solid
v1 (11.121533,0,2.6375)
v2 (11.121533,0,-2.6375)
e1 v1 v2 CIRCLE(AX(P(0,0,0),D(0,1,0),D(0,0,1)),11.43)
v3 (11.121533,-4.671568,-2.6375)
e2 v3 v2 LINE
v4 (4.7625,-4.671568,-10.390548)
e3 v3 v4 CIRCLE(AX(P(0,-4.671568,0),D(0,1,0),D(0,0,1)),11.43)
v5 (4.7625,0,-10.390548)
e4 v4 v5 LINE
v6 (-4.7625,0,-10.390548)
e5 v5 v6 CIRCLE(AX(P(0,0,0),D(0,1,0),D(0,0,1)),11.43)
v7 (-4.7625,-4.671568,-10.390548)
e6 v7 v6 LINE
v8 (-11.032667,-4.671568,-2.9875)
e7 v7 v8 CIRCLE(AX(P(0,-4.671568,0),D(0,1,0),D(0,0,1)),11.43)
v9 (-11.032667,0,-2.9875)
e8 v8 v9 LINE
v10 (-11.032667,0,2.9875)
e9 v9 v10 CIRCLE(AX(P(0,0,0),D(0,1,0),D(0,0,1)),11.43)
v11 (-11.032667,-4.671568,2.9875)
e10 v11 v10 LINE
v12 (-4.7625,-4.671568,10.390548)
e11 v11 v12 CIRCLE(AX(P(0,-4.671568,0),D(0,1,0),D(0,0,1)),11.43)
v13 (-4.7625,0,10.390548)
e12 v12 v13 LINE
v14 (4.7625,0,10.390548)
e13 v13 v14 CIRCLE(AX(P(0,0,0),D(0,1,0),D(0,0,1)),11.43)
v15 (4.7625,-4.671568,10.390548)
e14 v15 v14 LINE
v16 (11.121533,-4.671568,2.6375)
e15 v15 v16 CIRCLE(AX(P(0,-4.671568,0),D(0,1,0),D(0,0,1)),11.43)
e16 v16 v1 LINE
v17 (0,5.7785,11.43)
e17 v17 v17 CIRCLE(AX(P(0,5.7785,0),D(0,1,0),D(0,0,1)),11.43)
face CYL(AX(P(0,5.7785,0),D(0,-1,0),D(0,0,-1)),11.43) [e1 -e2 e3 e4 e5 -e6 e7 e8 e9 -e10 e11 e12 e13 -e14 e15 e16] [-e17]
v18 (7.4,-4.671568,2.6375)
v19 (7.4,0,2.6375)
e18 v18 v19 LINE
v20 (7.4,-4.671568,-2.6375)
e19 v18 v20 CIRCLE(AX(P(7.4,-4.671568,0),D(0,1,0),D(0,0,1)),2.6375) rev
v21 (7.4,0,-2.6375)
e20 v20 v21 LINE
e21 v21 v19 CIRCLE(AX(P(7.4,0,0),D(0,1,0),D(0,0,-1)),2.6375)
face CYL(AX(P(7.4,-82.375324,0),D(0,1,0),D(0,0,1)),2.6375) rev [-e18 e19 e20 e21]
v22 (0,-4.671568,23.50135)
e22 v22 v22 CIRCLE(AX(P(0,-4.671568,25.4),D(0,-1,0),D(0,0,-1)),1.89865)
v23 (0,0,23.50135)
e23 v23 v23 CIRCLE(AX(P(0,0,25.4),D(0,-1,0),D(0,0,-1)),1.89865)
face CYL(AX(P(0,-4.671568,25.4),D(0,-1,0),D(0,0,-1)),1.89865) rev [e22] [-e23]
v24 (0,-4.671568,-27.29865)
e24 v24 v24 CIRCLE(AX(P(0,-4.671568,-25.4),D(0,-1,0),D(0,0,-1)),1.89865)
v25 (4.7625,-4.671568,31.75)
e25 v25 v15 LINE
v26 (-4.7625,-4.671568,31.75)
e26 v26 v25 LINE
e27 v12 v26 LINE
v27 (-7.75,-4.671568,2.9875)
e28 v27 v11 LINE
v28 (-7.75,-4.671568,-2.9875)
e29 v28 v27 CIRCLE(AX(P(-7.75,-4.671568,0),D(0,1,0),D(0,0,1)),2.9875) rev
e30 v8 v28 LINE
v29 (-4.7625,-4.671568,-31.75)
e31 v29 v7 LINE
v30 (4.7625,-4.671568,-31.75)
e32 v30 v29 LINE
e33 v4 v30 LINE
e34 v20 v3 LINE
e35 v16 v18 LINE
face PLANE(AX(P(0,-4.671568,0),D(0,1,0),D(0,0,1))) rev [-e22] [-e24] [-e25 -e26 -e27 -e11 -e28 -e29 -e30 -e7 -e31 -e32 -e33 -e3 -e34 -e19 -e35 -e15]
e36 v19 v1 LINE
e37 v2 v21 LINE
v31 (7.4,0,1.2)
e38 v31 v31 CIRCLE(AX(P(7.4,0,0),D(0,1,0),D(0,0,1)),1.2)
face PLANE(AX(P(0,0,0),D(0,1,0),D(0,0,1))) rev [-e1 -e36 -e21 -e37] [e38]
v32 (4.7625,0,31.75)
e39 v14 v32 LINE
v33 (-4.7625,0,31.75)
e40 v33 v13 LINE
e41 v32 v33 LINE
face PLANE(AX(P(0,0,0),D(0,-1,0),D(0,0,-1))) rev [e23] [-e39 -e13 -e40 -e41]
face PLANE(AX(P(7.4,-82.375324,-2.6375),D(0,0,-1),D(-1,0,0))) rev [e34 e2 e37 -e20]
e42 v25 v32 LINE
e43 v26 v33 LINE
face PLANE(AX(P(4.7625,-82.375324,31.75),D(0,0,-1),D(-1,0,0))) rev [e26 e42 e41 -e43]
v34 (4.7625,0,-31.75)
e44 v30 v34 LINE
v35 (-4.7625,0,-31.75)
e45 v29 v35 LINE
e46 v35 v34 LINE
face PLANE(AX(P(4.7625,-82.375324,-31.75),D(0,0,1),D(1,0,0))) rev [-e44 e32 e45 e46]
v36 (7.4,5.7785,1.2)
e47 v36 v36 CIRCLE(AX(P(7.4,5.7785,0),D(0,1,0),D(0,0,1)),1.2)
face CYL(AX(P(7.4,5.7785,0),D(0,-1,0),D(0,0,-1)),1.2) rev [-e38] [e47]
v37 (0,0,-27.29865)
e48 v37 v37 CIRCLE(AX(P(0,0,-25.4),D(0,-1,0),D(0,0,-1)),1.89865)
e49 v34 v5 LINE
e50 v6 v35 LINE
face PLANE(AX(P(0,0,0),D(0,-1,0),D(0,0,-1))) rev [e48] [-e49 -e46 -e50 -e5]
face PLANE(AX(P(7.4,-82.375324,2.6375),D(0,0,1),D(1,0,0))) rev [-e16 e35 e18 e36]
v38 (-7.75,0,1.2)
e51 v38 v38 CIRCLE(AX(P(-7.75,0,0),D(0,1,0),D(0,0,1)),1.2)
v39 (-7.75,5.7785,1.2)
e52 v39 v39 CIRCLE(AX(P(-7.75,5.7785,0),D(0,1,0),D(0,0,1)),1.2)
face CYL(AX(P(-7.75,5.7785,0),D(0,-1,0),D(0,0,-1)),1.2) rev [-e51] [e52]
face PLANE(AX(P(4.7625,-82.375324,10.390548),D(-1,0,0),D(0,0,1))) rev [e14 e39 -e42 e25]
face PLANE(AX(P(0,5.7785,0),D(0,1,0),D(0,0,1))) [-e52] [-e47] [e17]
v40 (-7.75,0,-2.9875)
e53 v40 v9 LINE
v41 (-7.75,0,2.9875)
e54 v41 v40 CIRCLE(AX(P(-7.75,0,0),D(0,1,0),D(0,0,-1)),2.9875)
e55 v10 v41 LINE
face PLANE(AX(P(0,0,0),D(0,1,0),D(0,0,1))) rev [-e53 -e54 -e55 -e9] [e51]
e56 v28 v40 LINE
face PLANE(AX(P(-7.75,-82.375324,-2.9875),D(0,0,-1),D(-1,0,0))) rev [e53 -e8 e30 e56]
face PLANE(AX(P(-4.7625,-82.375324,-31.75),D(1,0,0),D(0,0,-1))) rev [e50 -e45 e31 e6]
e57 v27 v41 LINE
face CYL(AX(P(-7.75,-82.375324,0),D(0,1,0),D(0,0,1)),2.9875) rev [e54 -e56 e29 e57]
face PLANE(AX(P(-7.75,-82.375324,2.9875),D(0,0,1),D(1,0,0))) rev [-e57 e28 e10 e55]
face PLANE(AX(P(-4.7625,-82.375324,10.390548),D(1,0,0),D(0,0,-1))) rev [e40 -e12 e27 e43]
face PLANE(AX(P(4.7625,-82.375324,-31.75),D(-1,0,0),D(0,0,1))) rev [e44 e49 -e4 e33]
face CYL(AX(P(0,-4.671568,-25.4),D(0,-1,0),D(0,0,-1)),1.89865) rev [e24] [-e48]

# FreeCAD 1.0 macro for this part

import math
import FreeCAD as App
import Part
import Sketcher

V = App.Vector
Q = App.Units.Quantity

doc = App.newDocument("Part")
body = doc.addObject("PartDesign::Body", "Body")

sketch1 = body.newObject("Sketcher::SketchObject", "Sketch")
sketch1.AttachmentSupport = (doc.getObject("XZ_Plane"), [""])
sketch1.MapMode = "FlatFace"
sketch1.addGeometry(Part.Circle(V(0, 0, 0), V(0, 0, 1), 11.43), False)
sketch1.addGeometry(Part.Circle(V(-7.75, 0, 0), V(0, 0, 1), 1.2), False)
sketch1.addGeometry(Part.Circle(V(7.4, 0, 0), V(0, 0, 1), 1.2), False)
sketch1.addConstraint(Sketcher.Constraint("Coincident", 0, 3, -1, 1))
sketch1.addConstraint(Sketcher.Constraint("Equal", 1, 2))
sketch1.addConstraint(Sketcher.Constraint("PointOnObject", 1, 3, -1))
sketch1.addConstraint(Sketcher.Constraint("PointOnObject", 2, 3, -1))
sketch1.addConstraint(Sketcher.Constraint("Diameter", 0, Q("0.9 in")))
sketch1.addConstraint(Sketcher.Constraint("Diameter", 1, Q("2.4 mm")))
sketch1.addConstraint(Sketcher.Constraint("DistanceX", 1, 3, -1, 1, Q("7.75 mm")))
sketch1.addConstraint(Sketcher.Constraint("DistanceX", -1, 1, 2, 3, Q("7.4 mm")))
pad1 = body.newObject("PartDesign::Pad", "Pad")
pad1.Profile = sketch1
pad1.Length = Q("0.2275 in")
pad1.Reversed = True

sketch2 = body.newObject("Sketcher::SketchObject", "Sketch001")
sketch2.AttachmentSupport = (doc.getObject("XZ_Plane"), [""])
sketch2.MapMode = "FlatFace"
sketch2.addGeometry(Part.LineSegment(V(-7.75, -2.9875, 0), V(-11.032667, -2.9875, 0)), False)
sketch2.addGeometry(Part.ArcOfCircle(Part.Circle(V(0, 0, 0), V(0, 0, 1), 11.43), math.radians(-164.848419), math.radians(-114.624318)), False)
sketch2.addGeometry(Part.LineSegment(V(-4.7625, -10.390548, 0), V(-4.7625, -31.75, 0)), False)
sketch2.addGeometry(Part.LineSegment(V(-4.7625, -31.75, 0), V(4.7625, -31.75, 0)), False)
sketch2.addGeometry(Part.LineSegment(V(4.7625, -31.75, 0), V(4.7625, -10.390548, 0)), False)
sketch2.addGeometry(Part.ArcOfCircle(Part.Circle(V(0, 0, 0), V(0, 0, 1), 11.43), math.radians(-65.375682), math.radians(-13.341373)), False)
sketch2.addGeometry(Part.LineSegment(V(11.121533, -2.6375, 0), V(7.4, -2.6375, 0)), False)
sketch2.addGeometry(Part.ArcOfCircle(Part.Circle(V(7.4, 0, 0), V(0, 0, 1), 2.6375), math.radians(90), math.radians(270)), False)
sketch2.addGeometry(Part.LineSegment(V(7.4, 2.6375, 0), V(11.121533, 2.6375, 0)), False)
sketch2.addGeometry(Part.ArcOfCircle(Part.Circle(V(0, 0, 0), V(0, 0, 1), 11.43), math.radians(13.341373), math.radians(65.375682)), False)
sketch2.addGeometry(Part.LineSegment(V(4.7625, 10.390548, 0), V(4.7625, 31.75, 0)), False)
sketch2.addGeometry(Part.LineSegment(V(4.7625, 31.75, 0), V(-4.7625, 31.75, 0)), False)
sketch2.addGeometry(Part.LineSegment(V(-4.7625, 31.75, 0), V(-4.7625, 10.390548, 0)), False)
sketch2.addGeometry(Part.ArcOfCircle(Part.Circle(V(0, 0, 0), V(0, 0, 1), 11.43), math.radians(114.624318), math.radians(164.848419)), False)
sketch2.addGeometry(Part.LineSegment(V(-11.032667, 2.9875, 0), V(-7.75, 2.9875, 0)), False)
sketch2.addGeometry(Part.ArcOfCircle(Part.Circle(V(-7.75, 0, 0), V(0, 0, 1), 2.9875), math.radians(-90), math.radians(90)), False)
sketch2.addConstraint(Sketcher.Constraint("Coincident", 0, 2, 1, 1))
sketch2.addConstraint(Sketcher.Constraint("Coincident", 1, 2, 2, 1))
sketch2.addConstraint(Sketcher.Constraint("Coincident", 2, 2, 3, 1))
sketch2.addConstraint(Sketcher.Constraint("Coincident", 3, 2, 4, 1))
sketch2.addConstraint(Sketcher.Constraint("Coincident", 4, 2, 5, 1))
sketch2.addConstraint(Sketcher.Constraint("Coincident", 5, 2, 6, 1))
sketch2.addConstraint(Sketcher.Constraint("Tangent", 6, 2, 7, 2))
sketch2.addConstraint(Sketcher.Constraint("Tangent", 7, 1, 8, 1))
sketch2.addConstraint(Sketcher.Constraint("Coincident", 8, 2, 9, 1))
sketch2.addConstraint(Sketcher.Constraint("Coincident", 9, 2, 10, 1))
sketch2.addConstraint(Sketcher.Constraint("Coincident", 10, 2, 11, 1))
sketch2.addConstraint(Sketcher.Constraint("Coincident", 11, 2, 12, 1))
sketch2.addConstraint(Sketcher.Constraint("Coincident", 12, 2, 13, 1))
sketch2.addConstraint(Sketcher.Constraint("Coincident", 13, 2, 14, 1))
sketch2.addConstraint(Sketcher.Constraint("Tangent", 14, 2, 15, 2))
sketch2.addConstraint(Sketcher.Constraint("Tangent", 15, 1, 0, 1))
sketch2.addConstraint(Sketcher.Constraint("Horizontal", 0))
sketch2.addConstraint(Sketcher.Constraint("Vertical", 2))
sketch2.addConstraint(Sketcher.Constraint("Horizontal", 3))
sketch2.addConstraint(Sketcher.Constraint("Vertical", 4))
sketch2.addConstraint(Sketcher.Constraint("Horizontal", 6))
sketch2.addConstraint(Sketcher.Constraint("Horizontal", 8))
sketch2.addConstraint(Sketcher.Constraint("Vertical", 10))
sketch2.addConstraint(Sketcher.Constraint("Horizontal", 11))
sketch2.addConstraint(Sketcher.Constraint("Vertical", 12))
sketch2.addConstraint(Sketcher.Constraint("Horizontal", 14))
sketch2.addConstraint(Sketcher.Constraint("Coincident", 1, 3, -1, 1))
sketch2.addConstraint(Sketcher.Constraint("Coincident", 5, 3, -1, 1))
sketch2.addConstraint(Sketcher.Constraint("Coincident", 9, 3, -1, 1))
sketch2.addConstraint(Sketcher.Constraint("Coincident", 13, 3, -1, 1))
sketch2.addConstraint(Sketcher.Constraint("Equal", 1, 5))
sketch2.addConstraint(Sketcher.Constraint("Equal", 5, 9))
sketch2.addConstraint(Sketcher.Constraint("Equal", 9, 13))
sketch2.addConstraint(Sketcher.Constraint("Symmetric", 2, 2, 10, 2, -1, 1))
sketch2.addConstraint(Sketcher.Constraint("PointOnObject", 7, 3, -1))
sketch2.addConstraint(Sketcher.Constraint("PointOnObject", 15, 3, -1))
sketch2.addConstraint(Sketcher.Constraint("Horizontal", 1, 2, 4, 2))
sketch2.addConstraint(Sketcher.Constraint("Horizontal", 9, 2, 12, 2))
sketch2.addConstraint(Sketcher.Constraint("Radius", 1, Q("0.45 in")))
sketch2.addConstraint(Sketcher.Constraint("DistanceX", 3, 1, 3, 2, Q("0.375 in")))
sketch2.addConstraint(Sketcher.Constraint("DistanceY", 2, 2, -1, 1, Q("1.25 in")))
sketch2.addConstraint(Sketcher.Constraint("Radius", 7, Q("2.6375 mm")))
sketch2.addConstraint(Sketcher.Constraint("Radius", 15, Q("2.9875 mm")))
sketch2.addConstraint(Sketcher.Constraint("DistanceX", -1, 1, 7, 3, Q("7.4 mm")))
sketch2.addConstraint(Sketcher.Constraint("DistanceX", 15, 3, -1, 1, Q("7.75 mm")))
pad2 = body.newObject("PartDesign::Pad", "Pad001")
pad2.Profile = sketch2
pad2.Length = 4.671568

sketch3 = body.newObject("Sketcher::SketchObject", "Sketch002")
sketch3.AttachmentSupport = (doc.getObject("XZ_Plane"), [""])
sketch3.MapMode = "FlatFace"
sketch3.AttachmentOffset = App.Placement(V(0, 0, 4.671568), App.Rotation())
sketch3.addGeometry(Part.Circle(V(0, -25.4, 0), V(0, 0, 1), 1.89865), False)
sketch3.addGeometry(Part.Circle(V(0, 25.4, 0), V(0, 0, 1), 1.89865), False)
sketch3.addConstraint(Sketcher.Constraint("Equal", 0, 1))
sketch3.addConstraint(Sketcher.Constraint("Symmetric", 0, 3, 1, 3, -1, 1))
sketch3.addConstraint(Sketcher.Constraint("PointOnObject", 0, 3, -2))
sketch3.addConstraint(Sketcher.Constraint("DistanceY", 0, 3, -1, 1, Q("1 in")))
sketch3.addConstraint(Sketcher.Constraint("Diameter", 0, Q("0.1495 in")))
doc.recompute()
hole = body.newObject("PartDesign::Hole", "Hole")
hole.Profile = sketch3
hole.ThreadType = "None"
hole.Diameter = Q("0.1495 in")
hole.DepthType = "ThroughAll"

doc.recompute()
